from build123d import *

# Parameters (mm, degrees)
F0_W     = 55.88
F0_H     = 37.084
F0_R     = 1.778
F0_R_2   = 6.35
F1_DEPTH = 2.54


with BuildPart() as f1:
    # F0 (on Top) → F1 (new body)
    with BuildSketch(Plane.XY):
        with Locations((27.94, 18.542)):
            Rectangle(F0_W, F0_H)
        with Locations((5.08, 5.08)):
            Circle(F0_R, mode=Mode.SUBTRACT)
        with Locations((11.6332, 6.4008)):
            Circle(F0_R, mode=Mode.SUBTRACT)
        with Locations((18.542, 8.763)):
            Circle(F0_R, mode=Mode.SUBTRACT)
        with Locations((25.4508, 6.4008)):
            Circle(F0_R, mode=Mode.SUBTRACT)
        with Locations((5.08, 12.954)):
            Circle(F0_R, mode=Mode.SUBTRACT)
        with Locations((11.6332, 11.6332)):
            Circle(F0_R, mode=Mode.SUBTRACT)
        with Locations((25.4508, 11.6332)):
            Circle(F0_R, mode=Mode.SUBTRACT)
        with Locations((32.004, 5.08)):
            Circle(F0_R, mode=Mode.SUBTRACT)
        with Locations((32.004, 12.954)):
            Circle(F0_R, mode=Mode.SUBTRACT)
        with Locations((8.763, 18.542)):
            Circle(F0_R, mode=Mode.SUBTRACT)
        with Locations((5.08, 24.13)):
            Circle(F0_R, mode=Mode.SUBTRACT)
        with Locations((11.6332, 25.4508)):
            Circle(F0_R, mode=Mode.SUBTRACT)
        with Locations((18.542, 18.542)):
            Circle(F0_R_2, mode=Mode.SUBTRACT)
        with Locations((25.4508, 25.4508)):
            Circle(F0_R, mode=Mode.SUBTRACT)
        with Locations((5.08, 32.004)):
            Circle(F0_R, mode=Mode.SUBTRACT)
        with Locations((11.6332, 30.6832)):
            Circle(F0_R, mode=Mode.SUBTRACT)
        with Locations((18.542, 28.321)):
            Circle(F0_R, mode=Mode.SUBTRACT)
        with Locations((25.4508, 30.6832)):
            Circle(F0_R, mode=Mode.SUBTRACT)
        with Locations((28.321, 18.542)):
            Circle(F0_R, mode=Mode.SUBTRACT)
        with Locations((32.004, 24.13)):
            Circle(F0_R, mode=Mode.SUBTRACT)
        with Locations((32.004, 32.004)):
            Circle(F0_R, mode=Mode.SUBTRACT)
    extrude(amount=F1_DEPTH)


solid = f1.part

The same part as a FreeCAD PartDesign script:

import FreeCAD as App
import Part
import Sketcher
from FreeCAD import Vector
Q = App.Units.Quantity

doc = App.newDocument("Part")
body = doc.addObject("PartDesign::Body", "Body")

# Sketch on XY plane
sketch1 = body.newObject("Sketcher::SketchObject", "Sketch")
sketch1.AttachmentSupport = (doc.getObject("XY_Plane"), [""])
sketch1.MapMode = "FlatFace"
sketch1.addGeometry(Part.LineSegment(Vector(0, 37.1, 0), Vector(0, 0, 0)), False)
sketch1.addGeometry(Part.LineSegment(Vector(0, 0, 0), Vector(55.9, 0, 0)), False)
sketch1.addGeometry(Part.LineSegment(Vector(55.9, 0, 0), Vector(55.9, 37.1, 0)), False)
sketch1.addGeometry(Part.LineSegment(Vector(55.9, 37.1, 0), Vector(0, 37.1, 0)), False)
sketch1.addGeometry(Part.Circle(Vector(5.1, 5.1, 0), Vector(0, 0, 1), 1.8), False)
sketch1.addGeometry(Part.Circle(Vector(11.6, 6.4, 0), Vector(0, 0, 1), 1.8), False)
sketch1.addGeometry(Part.Circle(Vector(5.1, 13, 0), Vector(0, 0, 1), 1.8), False)
sketch1.addGeometry(Part.Circle(Vector(11.6, 11.6, 0), Vector(0, 0, 1), 1.8), False)
sketch1.addGeometry(Part.Circle(Vector(25.5, 6.4, 0), Vector(0, 0, 1), 1.8), False)
sketch1.addGeometry(Part.Circle(Vector(18.5, 8.8, 0), Vector(0, 0, 1), 1.8), False)
sketch1.addGeometry(Part.Circle(Vector(32, 5.1, 0), Vector(0, 0, 1), 1.8), False)
sketch1.addGeometry(Part.Circle(Vector(25.5, 11.6, 0), Vector(0, 0, 1), 1.8), False)
sketch1.addGeometry(Part.Circle(Vector(32, 13, 0), Vector(0, 0, 1), 1.8), False)
sketch1.addGeometry(Part.Circle(Vector(8.8, 18.5, 0), Vector(0, 0, 1), 1.8), False)
sketch1.addGeometry(Part.Circle(Vector(5.1, 24.1, 0), Vector(0, 0, 1), 1.8), False)
sketch1.addGeometry(Part.Circle(Vector(11.6, 25.5, 0), Vector(0, 0, 1), 1.8), False)
sketch1.addGeometry(Part.Circle(Vector(5.1, 32, 0), Vector(0, 0, 1), 1.8), False)
sketch1.addGeometry(Part.Circle(Vector(11.6, 30.7, 0), Vector(0, 0, 1), 1.8), False)
sketch1.addGeometry(Part.Circle(Vector(18.5, 18.5, 0), Vector(0, 0, 1), 6.3), False)
sketch1.addGeometry(Part.Circle(Vector(25.5, 25.5, 0), Vector(0, 0, 1), 1.8), False)
sketch1.addGeometry(Part.Circle(Vector(28.3, 18.5, 0), Vector(0, 0, 1), 1.8), False)
sketch1.addGeometry(Part.Circle(Vector(32, 24.1, 0), Vector(0, 0, 1), 1.8), False)
sketch1.addGeometry(Part.Circle(Vector(18.5, 28.3, 0), Vector(0, 0, 1), 1.8), False)
sketch1.addGeometry(Part.Circle(Vector(25.5, 30.7, 0), Vector(0, 0, 1), 1.8), False)
sketch1.addGeometry(Part.Circle(Vector(32, 32, 0), Vector(0, 0, 1), 1.8), False)
sketch1.addConstraint(Sketcher.Constraint("Coincident", 0, 2, 1, 1))
sketch1.addConstraint(Sketcher.Constraint("Coincident", 1, 2, 2, 1))
sketch1.addConstraint(Sketcher.Constraint("Coincident", 2, 2, 3, 1))
sketch1.addConstraint(Sketcher.Constraint("Coincident", 3, 2, 0, 1))
sketch1.addConstraint(Sketcher.Constraint("Vertical", 0))
sketch1.addConstraint(Sketcher.Constraint("Horizontal", 1))
sketch1.addConstraint(Sketcher.Constraint("Vertical", 2))
sketch1.addConstraint(Sketcher.Constraint("Horizontal", 3))
sketch1.addConstraint(Sketcher.Constraint("Coincident", 0, 2, -1, 1))
sketch1.addConstraint(Sketcher.Constraint("Equal", 4, 5))
sketch1.addConstraint(Sketcher.Constraint("Equal", 5, 6))
sketch1.addConstraint(Sketcher.Constraint("Equal", 6, 7))
sketch1.addConstraint(Sketcher.Constraint("Equal", 7, 8))
sketch1.addConstraint(Sketcher.Constraint("Equal", 8, 9))
sketch1.addConstraint(Sketcher.Constraint("Equal", 9, 10))
sketch1.addConstraint(Sketcher.Constraint("Equal", 10, 11))
sketch1.addConstraint(Sketcher.Constraint("Equal", 11, 12))
sketch1.addConstraint(Sketcher.Constraint("Equal", 12, 13))
sketch1.addConstraint(Sketcher.Constraint("Equal", 13, 14))
sketch1.addConstraint(Sketcher.Constraint("Equal", 14, 15))
sketch1.addConstraint(Sketcher.Constraint("Equal", 15, 16))
sketch1.addConstraint(Sketcher.Constraint("Equal", 16, 17))
sketch1.addConstraint(Sketcher.Constraint("Equal", 17, 19))
sketch1.addConstraint(Sketcher.Constraint("Equal", 19, 20))
sketch1.addConstraint(Sketcher.Constraint("Equal", 20, 21))
sketch1.addConstraint(Sketcher.Constraint("Equal", 21, 22))
sketch1.addConstraint(Sketcher.Constraint("Equal", 22, 23))
sketch1.addConstraint(Sketcher.Constraint("Equal", 23, 24))
sketch1.addConstraint(Sketcher.Constraint("Horizontal", 5, 3, 8, 3))
sketch1.addConstraint(Sketcher.Constraint("Horizontal", 4, 3, 10, 3))
sketch1.addConstraint(Sketcher.Constraint("Horizontal", 7, 3, 11, 3))
sketch1.addConstraint(Sketcher.Constraint("Horizontal", 6, 3, 12, 3))
sketch1.addConstraint(Sketcher.Constraint("Horizontal", 13, 3, 18, 3))
sketch1.addConstraint(Sketcher.Constraint("Horizontal", 15, 3, 19, 3))
sketch1.addConstraint(Sketcher.Constraint("Horizontal", 18, 3, 20, 3))
sketch1.addConstraint(Sketcher.Constraint("Horizontal", 14, 3, 21, 3))
sketch1.addConstraint(Sketcher.Constraint("Horizontal", 17, 3, 23, 3))
sketch1.addConstraint(Sketcher.Constraint("Horizontal", 16, 3, 24, 3))
sketch1.addConstraint(Sketcher.Constraint("Vertical", 4, 3, 6, 3))
sketch1.addConstraint(Sketcher.Constraint("Vertical", 5, 3, 7, 3))
sketch1.addConstraint(Sketcher.Constraint("Vertical", 8, 3, 11, 3))
sketch1.addConstraint(Sketcher.Constraint("Vertical", 10, 3, 12, 3))
sketch1.addConstraint(Sketcher.Constraint("Vertical", 6, 3, 14, 3))
sketch1.addConstraint(Sketcher.Constraint("Vertical", 7, 3, 15, 3))
sketch1.addConstraint(Sketcher.Constraint("Vertical", 14, 3, 16, 3))
sketch1.addConstraint(Sketcher.Constraint("Vertical", 15, 3, 17, 3))
sketch1.addConstraint(Sketcher.Constraint("Vertical", 9, 3, 18, 3))
sketch1.addConstraint(Sketcher.Constraint("Vertical", 11, 3, 19, 3))
sketch1.addConstraint(Sketcher.Constraint("Vertical", 12, 3, 21, 3))
sketch1.addConstraint(Sketcher.Constraint("Vertical", 18, 3, 22, 3))
sketch1.addConstraint(Sketcher.Constraint("Vertical", 19, 3, 23, 3))
sketch1.addConstraint(Sketcher.Constraint("Vertical", 21, 3, 24, 3))
sketch1.addConstraint(Sketcher.Constraint("Diameter", 18, Q("0.5 in")))
sketch1.addConstraint(Sketcher.Constraint("Diameter", 4, Q("0.14 in")))
sketch1.addConstraint(Sketcher.Constraint("DistanceX", 1, 1, 1, 2, Q("2.2 in")))
sketch1.addConstraint(Sketcher.Constraint("DistanceY", 0, 2, 0, 1, Q("1.46 in")))
sketch1.addConstraint(Sketcher.Constraint("DistanceX", -1, 1, 4, 3, Q("0.2 in")))
sketch1.addConstraint(Sketcher.Constraint("DistanceY", -1, 1, 4, 3, Q("0.2 in")))
sketch1.addConstraint(Sketcher.Constraint("DistanceY", 24, 3, 2, 2, Q("0.2 in")))
sketch1.addConstraint(Sketcher.Constraint("DistanceY", -1, 1, 6, 3, Q("0.51 in")))
sketch1.addConstraint(Sketcher.Constraint("DistanceX", -1, 1, 9, 3, Q("0.73 in")))
sketch1.addConstraint(Sketcher.Constraint("DistanceX", -1, 1, 10, 3, Q("1.26 in")))
sketch1.addConstraint(Sketcher.Constraint("DistanceY", -1, 1, 13, 3, Q("0.73 in")))
sketch1.addConstraint(Sketcher.Constraint("DistanceY", -1, 1, 14, 3, Q("0.95 in")))
sketch1.addConstraint(Sketcher.Constraint("DistanceX", -1, 1, 5, 3, Q("0.458 in")))
sketch1.addConstraint(Sketcher.Constraint("DistanceY", -1, 1, 5, 3, Q("0.252 in")))
sketch1.addConstraint(Sketcher.Constraint("DistanceY", -1, 1, 7, 3, Q("0.458 in")))
sketch1.addConstraint(Sketcher.Constraint("DistanceX", -1, 1, 8, 3, Q("1.002 in")))
sketch1.addConstraint(Sketcher.Constraint("DistanceY", -1, 1, 9, 3, Q("0.345 in")))
sketch1.addConstraint(Sketcher.Constraint("DistanceX", -1, 1, 13, 3, Q("0.345 in")))
sketch1.addConstraint(Sketcher.Constraint("DistanceY", -1, 1, 15, 3, Q("1.002 in")))
sketch1.addConstraint(Sketcher.Constraint("DistanceY", -1, 1, 17, 3, Q("1.208 in")))
sketch1.addConstraint(Sketcher.Constraint("DistanceX", -1, 1, 20, 3, Q("1.115 in")))
sketch1.addConstraint(Sketcher.Constraint("DistanceY", -1, 1, 22, 3, Q("1.115 in")))
pad1 = body.newObject("PartDesign::Pad", "Pad")
pad1.Profile = sketch1
pad1.Length = Q("0.1 in")

doc.recompute()
